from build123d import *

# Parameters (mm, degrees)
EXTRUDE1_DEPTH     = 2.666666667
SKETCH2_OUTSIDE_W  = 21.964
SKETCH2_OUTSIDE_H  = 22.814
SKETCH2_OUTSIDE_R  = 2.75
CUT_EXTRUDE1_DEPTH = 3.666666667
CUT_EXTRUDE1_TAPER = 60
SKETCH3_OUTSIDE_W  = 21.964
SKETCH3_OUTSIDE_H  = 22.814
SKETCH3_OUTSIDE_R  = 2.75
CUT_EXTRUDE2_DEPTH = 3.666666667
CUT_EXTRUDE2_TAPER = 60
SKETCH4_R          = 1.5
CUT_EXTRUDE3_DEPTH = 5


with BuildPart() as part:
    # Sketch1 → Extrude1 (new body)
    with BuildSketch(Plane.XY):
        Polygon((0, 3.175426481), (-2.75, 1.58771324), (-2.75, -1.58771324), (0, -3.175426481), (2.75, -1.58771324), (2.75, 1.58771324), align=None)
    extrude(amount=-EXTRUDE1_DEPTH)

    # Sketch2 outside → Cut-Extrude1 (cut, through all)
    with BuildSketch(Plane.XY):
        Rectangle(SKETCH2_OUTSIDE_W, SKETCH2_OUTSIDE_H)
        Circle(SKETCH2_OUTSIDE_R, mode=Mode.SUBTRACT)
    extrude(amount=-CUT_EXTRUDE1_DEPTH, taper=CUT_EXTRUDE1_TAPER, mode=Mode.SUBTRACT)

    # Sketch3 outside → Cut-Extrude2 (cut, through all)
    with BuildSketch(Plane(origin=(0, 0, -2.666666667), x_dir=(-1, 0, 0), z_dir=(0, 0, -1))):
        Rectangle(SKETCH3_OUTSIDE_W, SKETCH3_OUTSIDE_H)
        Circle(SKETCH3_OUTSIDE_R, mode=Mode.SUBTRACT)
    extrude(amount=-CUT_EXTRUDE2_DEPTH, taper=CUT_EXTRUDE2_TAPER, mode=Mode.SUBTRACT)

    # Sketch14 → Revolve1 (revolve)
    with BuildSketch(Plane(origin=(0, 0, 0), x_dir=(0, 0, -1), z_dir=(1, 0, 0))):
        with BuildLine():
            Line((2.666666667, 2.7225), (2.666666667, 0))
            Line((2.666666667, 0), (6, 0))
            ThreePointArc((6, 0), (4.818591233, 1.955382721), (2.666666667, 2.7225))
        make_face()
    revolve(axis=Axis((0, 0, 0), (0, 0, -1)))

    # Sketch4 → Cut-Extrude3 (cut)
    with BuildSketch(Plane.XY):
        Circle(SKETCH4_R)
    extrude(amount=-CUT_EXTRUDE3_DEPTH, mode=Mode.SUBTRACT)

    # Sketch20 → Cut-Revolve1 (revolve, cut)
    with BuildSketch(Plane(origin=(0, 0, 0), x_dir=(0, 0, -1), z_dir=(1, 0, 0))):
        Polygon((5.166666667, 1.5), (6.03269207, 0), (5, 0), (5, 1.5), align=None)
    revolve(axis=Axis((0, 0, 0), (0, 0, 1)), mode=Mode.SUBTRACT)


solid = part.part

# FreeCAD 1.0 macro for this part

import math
import FreeCAD as App
import Part
import Sketcher
from FreeCAD import Vector
Q = App.Units.Quantity


def add_polygon(sketch, points):
    """Adds a closed chain of lines whose ends are joined by coincident constraints."""
    first, n = sketch.GeometryCount, len(points)
    for a, b in zip(points, points[1:] + points[:1]):
        sketch.addGeometry(Part.LineSegment(App.Vector(*a, 0), App.Vector(*b, 0)), False)
    for i in range(n):
        sketch.addConstraint(Sketcher.Constraint("Coincident", first + i, 2, first + (i + 1) % n, 1))

doc = App.newDocument("Part")
params = doc.addObject("Spreadsheet::Sheet", "Params")
for row, (alias, value) in enumerate([
    ("pad1_length", "2.666667 mm"),
    ("sketch2_diameter", "5.5 mm"),
    ("pocket1_length", "3.666667 mm"),
    ("pocket1_taper", "60 deg"),
    ("sketch3_diameter", "5.5 mm"),
    ("pocket2_length", "3.666667 mm"),
    ("pocket2_taper", "60 deg"),
    ("revolution_angle", "360 deg"),
    ("sketch5_diameter", "3 mm"),
    ("pocket3_length", "5 mm"),
    ("sketch6_width", "1.5 mm"),
    ("groove_angle", "360 deg"),
], start=1):
    params.set(f"A{row}", alias)
    params.set(f"B{row}", "=" + value)
    params.setAlias(f"B{row}", alias)

body = doc.addObject("PartDesign::Body", "Body")

# Sketch on XY plane
sketch1 = body.newObject("Sketcher::SketchObject", "Sketch")
sketch1.AttachmentSupport = (doc.getObject("XY_Plane"), [""])
sketch1.MapMode = "FlatFace"
add_polygon(sketch1, [(0, 3.2), (-2.8, 1.6), (-2.8, -1.6), (0, -3.2), (2.8, -1.6), (2.8, 1.6)])  # lines 0-5
sketch1.addConstraint(Sketcher.Constraint("Vertical", 1))
sketch1.addConstraint(Sketcher.Constraint("Vertical", 4))
sketch1.addConstraint(Sketcher.Constraint("Symmetric", 0, 2, 3, 2, -1, 1))
sketch1.addConstraint(Sketcher.Constraint("Symmetric", 2, 2, 5, 2, -1, 1))
sketch1.addConstraint(Sketcher.Constraint("PointOnObject", 2, 2, -2))
sketch1.addConstraint(Sketcher.Constraint("Parallel", 2, 5))
sketch1.addConstraint(Sketcher.Constraint("Horizontal", 1, 2, 3, 2))
sketch1.addConstraint(Sketcher.Constraint("Angle", 0, Q("-150 deg")))
sketch1.addConstraint(Sketcher.Constraint("DistanceX", 1, 2, 3, 2, 5.5))
sketch1.addConstraint(Sketcher.Constraint("DistanceY", 1, 2, 1, 1, 3.175426))
pad1 = body.newObject("PartDesign::Pad", "Pad")
pad1.Profile = sketch1
pad1.setExpression("Length", "Params.pad1_length")
pad1.Reversed = True

# Sketch on XY plane
sketch2 = body.newObject("Sketcher::SketchObject", "Sketch001")
sketch2.AttachmentSupport = (doc.getObject("XY_Plane"), [""])
sketch2.MapMode = "FlatFace"
add_polygon(sketch2, [(-11, 11.4), (-11, -11.4), (11, -11.4), (11, 11.4)])  # lines 0-3
sketch2.addGeometry(Part.Circle(Vector(0, 0, 0), Vector(0, 0, 1), 2.8), False)  # 4
sketch2.addConstraint(Sketcher.Constraint("Vertical", 0))
sketch2.addConstraint(Sketcher.Constraint("Horizontal", 1))
sketch2.addConstraint(Sketcher.Constraint("Vertical", 2))
sketch2.addConstraint(Sketcher.Constraint("Horizontal", 3))
sketch2.addConstraint(Sketcher.Constraint("Coincident", 4, 3, -1, 1))
sketch2.addConstraint(Sketcher.Constraint("Symmetric", 0, 2, 2, 2, -1, 1))
sketch2.addConstraint(Sketcher.Constraint("Diameter", 4, 5.5))
sketch2.addConstraint(Sketcher.Constraint("DistanceX", 1, 1, 1, 2, 21.964))
sketch2.addConstraint(Sketcher.Constraint("DistanceY", 0, 2, 0, 1, 22.814))
sketch2.setExpression("Constraints[10]", "Params.sketch2_diameter")
pocket1 = body.newObject("PartDesign::Pocket", "Pocket")
pocket1.Profile = sketch2
pocket1.setExpression("Length", "Params.pocket1_length")
pocket1.setExpression("TaperAngle", "Params.pocket1_taper")

# Sketch on XY plane
sketch3 = body.newObject("Sketcher::SketchObject", "Sketch002")
sketch3.AttachmentSupport = (doc.getObject("XY_Plane"), [""])
sketch3.MapMode = "FlatFace"
sketch3.AttachmentOffset = App.Placement(Vector(0, 0, -2.666667), App.Rotation())
add_polygon(sketch3, [(11, 11.4), (11, -11.4), (-11, -11.4), (-11, 11.4)])  # lines 0-3
sketch3.addGeometry(Part.Circle(Vector(0, 0, 0), Vector(0, 0, 1), 2.8), False)  # 4
sketch3.addConstraint(Sketcher.Constraint("Vertical", 0))
sketch3.addConstraint(Sketcher.Constraint("Horizontal", 1))
sketch3.addConstraint(Sketcher.Constraint("Vertical", 2))
sketch3.addConstraint(Sketcher.Constraint("Horizontal", 3))
sketch3.addConstraint(Sketcher.Constraint("Coincident", 4, 3, -1, 1))
sketch3.addConstraint(Sketcher.Constraint("Symmetric", 0, 2, 2, 2, -1, 1))
sketch3.addConstraint(Sketcher.Constraint("Diameter", 4, 5.5))
sketch3.addConstraint(Sketcher.Constraint("DistanceX", 1, 2, 1, 1, 21.964))
sketch3.addConstraint(Sketcher.Constraint("DistanceY", 0, 2, 0, 1, 22.814))
sketch3.setExpression("Constraints[10]", "Params.sketch3_diameter")
pocket2 = body.newObject("PartDesign::Pocket", "Pocket001")
pocket2.Profile = sketch3
pocket2.setExpression("Length", "Params.pocket2_length")
pocket2.Reversed = True
pocket2.setExpression("TaperAngle", "Params.pocket2_taper")

# Sketch on YZ plane
sketch4 = body.newObject("Sketcher::SketchObject", "Sketch003")
sketch4.AttachmentSupport = (doc.getObject("YZ_Plane"), [""])
sketch4.MapMode = "FlatFace"
sketch4.addGeometry(Part.LineSegment(Vector(2.7, -2.7, 0), Vector(0, -2.7, 0)), False)
sketch4.addGeometry(Part.LineSegment(Vector(0, -2.7, 0), Vector(0, -6, 0)), False)
sketch4.addGeometry(Part.ArcOfCircle(Part.Circle(Vector(-0.7, -2.7, 0), Vector(0, 0, 1), 3.4), math.radians(-78), math.radians(0)), False)
sketch4.addConstraint(Sketcher.Constraint("Coincident", 0, 2, 1, 1))
sketch4.addConstraint(Sketcher.Constraint("Coincident", 1, 2, 2, 1))
sketch4.addConstraint(Sketcher.Constraint("Coincident", 2, 2, 0, 1))
sketch4.addConstraint(Sketcher.Constraint("Horizontal", 0))
sketch4.addConstraint(Sketcher.Constraint("Vertical", 1))
sketch4.addConstraint(Sketcher.Constraint("PointOnObject", 0, 2, -2))
sketch4.addConstraint(Sketcher.Constraint("Horizontal", 2, 3, 0, 2))
sketch4.addConstraint(Sketcher.Constraint("DistanceY", 1, 2, -1, 1, 6.0))
sketch4.addConstraint(Sketcher.Constraint("Radius", 2, 3.401858))
sketch4.addConstraint(Sketcher.Constraint("DistanceX", 0, 2, 0, 1, 2.7225))
revolution = body.newObject("PartDesign::Revolution", "Revolution")
revolution.Profile = sketch4
revolution.ReferenceAxis = (sketch4, ["V_Axis"])
revolution.setExpression("Angle", "Params.revolution_angle")

# Sketch on XY plane
sketch5 = body.newObject("Sketcher::SketchObject", "Sketch004")
sketch5.AttachmentSupport = (doc.getObject("XY_Plane"), [""])
sketch5.MapMode = "FlatFace"
sketch5.addGeometry(Part.Circle(Vector(0, 0, 0), Vector(0, 0, 1), 1.5), False)
sketch5.addConstraint(Sketcher.Constraint("Coincident", 0, 3, -1, 1))
sketch5.addConstraint(Sketcher.Constraint("Diameter", 0, 3.0))
sketch5.setExpression("Constraints[1]", "Params.sketch5_diameter")
pocket3 = body.newObject("PartDesign::Pocket", "Pocket002")
pocket3.Profile = sketch5
pocket3.setExpression("Length", "Params.pocket3_length")

# Sketch on YZ plane
sketch6 = body.newObject("Sketcher::SketchObject", "Sketch005")
sketch6.AttachmentSupport = (doc.getObject("YZ_Plane"), [""])
sketch6.MapMode = "FlatFace"
add_polygon(sketch6, [(0, -6.03), (1.5, -5.17), (1.5, -5), (0, -5)])  # lines 0-3
sketch6.addConstraint(Sketcher.Constraint("Vertical", 1))
sketch6.addConstraint(Sketcher.Constraint("Horizontal", 2))
sketch6.addConstraint(Sketcher.Constraint("Vertical", 3))
sketch6.addConstraint(Sketcher.Constraint("PointOnObject", 2, 2, -2))
sketch6.addConstraint(Sketcher.Constraint("Angle", 0, Q("30 deg")))
sketch6.addConstraint(Sketcher.Constraint("DistanceX", 2, 2, 2, 1, 1.5))
sketch6.addConstraint(Sketcher.Constraint("DistanceY", 1, 2, -1, 1, 5.0))
sketch6.addConstraint(Sketcher.Constraint("DistanceY", 1, 1, 1, 2, 0.166667))
sketch6.setExpression("Constraints[9]", "Params.sketch6_width")
groove = body.newObject("PartDesign::Groove", "Groove")
groove.Profile = sketch6
groove.ReferenceAxis = (sketch6, ["V_Axis"])
groove.setExpression("Angle", "Params.groove_angle")

doc.recompute()
